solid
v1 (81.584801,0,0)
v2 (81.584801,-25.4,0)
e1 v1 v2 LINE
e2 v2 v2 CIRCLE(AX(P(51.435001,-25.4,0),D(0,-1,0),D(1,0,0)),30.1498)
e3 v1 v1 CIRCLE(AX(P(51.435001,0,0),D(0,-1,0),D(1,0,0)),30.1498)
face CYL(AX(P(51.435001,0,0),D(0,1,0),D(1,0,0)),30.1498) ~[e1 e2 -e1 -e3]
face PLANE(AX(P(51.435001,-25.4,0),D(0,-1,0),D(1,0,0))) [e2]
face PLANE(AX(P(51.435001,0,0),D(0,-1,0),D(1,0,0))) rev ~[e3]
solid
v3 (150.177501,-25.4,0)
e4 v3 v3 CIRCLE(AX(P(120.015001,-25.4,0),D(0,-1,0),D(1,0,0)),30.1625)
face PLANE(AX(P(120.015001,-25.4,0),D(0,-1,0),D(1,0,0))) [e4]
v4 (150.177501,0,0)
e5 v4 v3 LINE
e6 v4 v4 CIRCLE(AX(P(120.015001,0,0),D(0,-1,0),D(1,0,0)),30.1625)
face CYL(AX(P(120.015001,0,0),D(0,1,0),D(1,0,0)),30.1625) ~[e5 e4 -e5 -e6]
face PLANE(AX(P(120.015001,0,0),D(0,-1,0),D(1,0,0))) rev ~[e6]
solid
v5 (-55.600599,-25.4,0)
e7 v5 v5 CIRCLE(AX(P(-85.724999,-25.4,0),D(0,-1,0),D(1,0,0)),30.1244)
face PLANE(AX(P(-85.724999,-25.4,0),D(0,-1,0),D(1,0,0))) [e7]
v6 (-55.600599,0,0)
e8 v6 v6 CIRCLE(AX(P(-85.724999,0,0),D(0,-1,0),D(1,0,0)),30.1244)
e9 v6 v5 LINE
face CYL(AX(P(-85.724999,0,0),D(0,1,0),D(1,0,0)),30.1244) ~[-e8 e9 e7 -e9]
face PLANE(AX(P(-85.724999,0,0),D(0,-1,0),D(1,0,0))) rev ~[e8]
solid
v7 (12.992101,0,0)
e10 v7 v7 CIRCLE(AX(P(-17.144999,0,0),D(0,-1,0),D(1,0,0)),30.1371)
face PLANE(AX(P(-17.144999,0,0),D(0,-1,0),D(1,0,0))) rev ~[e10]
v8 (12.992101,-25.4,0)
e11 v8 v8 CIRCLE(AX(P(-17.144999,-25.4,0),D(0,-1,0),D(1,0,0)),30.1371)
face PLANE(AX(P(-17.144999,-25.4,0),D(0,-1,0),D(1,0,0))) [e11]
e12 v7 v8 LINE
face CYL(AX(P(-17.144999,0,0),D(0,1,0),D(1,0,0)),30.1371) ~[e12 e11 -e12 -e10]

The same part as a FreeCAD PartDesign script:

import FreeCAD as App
import Part
import Sketcher

V = App.Vector
Q = App.Units.Quantity

doc = App.newDocument("Part")
body = doc.addObject("PartDesign::Body", "Body")
body.AllowCompound = True

sketch1 = doc.addObject("Sketcher::SketchObject", "Sketch")
body.addObject(sketch1)
sketch1.AttachmentSupport = (doc.XZ_Plane, [""])
sketch1.MapMode = "FlatFace"
sketch1.addGeometry([
    Part.Circle(V(-86, 0, 0), V(0, 0, 1), 30),
    Part.Circle(V(-17, 0, 0), V(0, 0, 1), 30),
    Part.Circle(V(51, 0, 0), V(0, 0, 1), 30),
    Part.Circle(V(120, 0, 0), V(0, 0, 1), 30),
], False)
sketch1.addConstraint([
    Sketcher.Constraint("PointOnObject", 0, 3, -1),
    Sketcher.Constraint("PointOnObject", 1, 3, -1),
    Sketcher.Constraint("PointOnObject", 2, 3, -1),
    Sketcher.Constraint("PointOnObject", 3, 3, -1),
    Sketcher.Constraint("Diameter", 0, Q("2.372 in")),
    Sketcher.Constraint("Diameter", 1, Q("2.373 in")),
    Sketcher.Constraint("Diameter", 2, Q("2.374 in")),
    Sketcher.Constraint("Diameter", 3, Q("2.375 in")),
    Sketcher.Constraint("DistanceX", 0, 3, 1, 3, Q("2.7 in")),
    Sketcher.Constraint("DistanceX", 1, 3, 2, 3, Q("2.7 in")),
    Sketcher.Constraint("DistanceX", 2, 3, 3, 3, Q("2.7 in")),
    Sketcher.Constraint("DistanceX", 0, 3, -1, 1, Q("3.375 in")),
])
pad1 = doc.addObject("PartDesign::Pad", "Pad")
body.addObject(pad1)
pad1.Profile = sketch1
pad1.Length = Q("1 in")

doc.recompute()
